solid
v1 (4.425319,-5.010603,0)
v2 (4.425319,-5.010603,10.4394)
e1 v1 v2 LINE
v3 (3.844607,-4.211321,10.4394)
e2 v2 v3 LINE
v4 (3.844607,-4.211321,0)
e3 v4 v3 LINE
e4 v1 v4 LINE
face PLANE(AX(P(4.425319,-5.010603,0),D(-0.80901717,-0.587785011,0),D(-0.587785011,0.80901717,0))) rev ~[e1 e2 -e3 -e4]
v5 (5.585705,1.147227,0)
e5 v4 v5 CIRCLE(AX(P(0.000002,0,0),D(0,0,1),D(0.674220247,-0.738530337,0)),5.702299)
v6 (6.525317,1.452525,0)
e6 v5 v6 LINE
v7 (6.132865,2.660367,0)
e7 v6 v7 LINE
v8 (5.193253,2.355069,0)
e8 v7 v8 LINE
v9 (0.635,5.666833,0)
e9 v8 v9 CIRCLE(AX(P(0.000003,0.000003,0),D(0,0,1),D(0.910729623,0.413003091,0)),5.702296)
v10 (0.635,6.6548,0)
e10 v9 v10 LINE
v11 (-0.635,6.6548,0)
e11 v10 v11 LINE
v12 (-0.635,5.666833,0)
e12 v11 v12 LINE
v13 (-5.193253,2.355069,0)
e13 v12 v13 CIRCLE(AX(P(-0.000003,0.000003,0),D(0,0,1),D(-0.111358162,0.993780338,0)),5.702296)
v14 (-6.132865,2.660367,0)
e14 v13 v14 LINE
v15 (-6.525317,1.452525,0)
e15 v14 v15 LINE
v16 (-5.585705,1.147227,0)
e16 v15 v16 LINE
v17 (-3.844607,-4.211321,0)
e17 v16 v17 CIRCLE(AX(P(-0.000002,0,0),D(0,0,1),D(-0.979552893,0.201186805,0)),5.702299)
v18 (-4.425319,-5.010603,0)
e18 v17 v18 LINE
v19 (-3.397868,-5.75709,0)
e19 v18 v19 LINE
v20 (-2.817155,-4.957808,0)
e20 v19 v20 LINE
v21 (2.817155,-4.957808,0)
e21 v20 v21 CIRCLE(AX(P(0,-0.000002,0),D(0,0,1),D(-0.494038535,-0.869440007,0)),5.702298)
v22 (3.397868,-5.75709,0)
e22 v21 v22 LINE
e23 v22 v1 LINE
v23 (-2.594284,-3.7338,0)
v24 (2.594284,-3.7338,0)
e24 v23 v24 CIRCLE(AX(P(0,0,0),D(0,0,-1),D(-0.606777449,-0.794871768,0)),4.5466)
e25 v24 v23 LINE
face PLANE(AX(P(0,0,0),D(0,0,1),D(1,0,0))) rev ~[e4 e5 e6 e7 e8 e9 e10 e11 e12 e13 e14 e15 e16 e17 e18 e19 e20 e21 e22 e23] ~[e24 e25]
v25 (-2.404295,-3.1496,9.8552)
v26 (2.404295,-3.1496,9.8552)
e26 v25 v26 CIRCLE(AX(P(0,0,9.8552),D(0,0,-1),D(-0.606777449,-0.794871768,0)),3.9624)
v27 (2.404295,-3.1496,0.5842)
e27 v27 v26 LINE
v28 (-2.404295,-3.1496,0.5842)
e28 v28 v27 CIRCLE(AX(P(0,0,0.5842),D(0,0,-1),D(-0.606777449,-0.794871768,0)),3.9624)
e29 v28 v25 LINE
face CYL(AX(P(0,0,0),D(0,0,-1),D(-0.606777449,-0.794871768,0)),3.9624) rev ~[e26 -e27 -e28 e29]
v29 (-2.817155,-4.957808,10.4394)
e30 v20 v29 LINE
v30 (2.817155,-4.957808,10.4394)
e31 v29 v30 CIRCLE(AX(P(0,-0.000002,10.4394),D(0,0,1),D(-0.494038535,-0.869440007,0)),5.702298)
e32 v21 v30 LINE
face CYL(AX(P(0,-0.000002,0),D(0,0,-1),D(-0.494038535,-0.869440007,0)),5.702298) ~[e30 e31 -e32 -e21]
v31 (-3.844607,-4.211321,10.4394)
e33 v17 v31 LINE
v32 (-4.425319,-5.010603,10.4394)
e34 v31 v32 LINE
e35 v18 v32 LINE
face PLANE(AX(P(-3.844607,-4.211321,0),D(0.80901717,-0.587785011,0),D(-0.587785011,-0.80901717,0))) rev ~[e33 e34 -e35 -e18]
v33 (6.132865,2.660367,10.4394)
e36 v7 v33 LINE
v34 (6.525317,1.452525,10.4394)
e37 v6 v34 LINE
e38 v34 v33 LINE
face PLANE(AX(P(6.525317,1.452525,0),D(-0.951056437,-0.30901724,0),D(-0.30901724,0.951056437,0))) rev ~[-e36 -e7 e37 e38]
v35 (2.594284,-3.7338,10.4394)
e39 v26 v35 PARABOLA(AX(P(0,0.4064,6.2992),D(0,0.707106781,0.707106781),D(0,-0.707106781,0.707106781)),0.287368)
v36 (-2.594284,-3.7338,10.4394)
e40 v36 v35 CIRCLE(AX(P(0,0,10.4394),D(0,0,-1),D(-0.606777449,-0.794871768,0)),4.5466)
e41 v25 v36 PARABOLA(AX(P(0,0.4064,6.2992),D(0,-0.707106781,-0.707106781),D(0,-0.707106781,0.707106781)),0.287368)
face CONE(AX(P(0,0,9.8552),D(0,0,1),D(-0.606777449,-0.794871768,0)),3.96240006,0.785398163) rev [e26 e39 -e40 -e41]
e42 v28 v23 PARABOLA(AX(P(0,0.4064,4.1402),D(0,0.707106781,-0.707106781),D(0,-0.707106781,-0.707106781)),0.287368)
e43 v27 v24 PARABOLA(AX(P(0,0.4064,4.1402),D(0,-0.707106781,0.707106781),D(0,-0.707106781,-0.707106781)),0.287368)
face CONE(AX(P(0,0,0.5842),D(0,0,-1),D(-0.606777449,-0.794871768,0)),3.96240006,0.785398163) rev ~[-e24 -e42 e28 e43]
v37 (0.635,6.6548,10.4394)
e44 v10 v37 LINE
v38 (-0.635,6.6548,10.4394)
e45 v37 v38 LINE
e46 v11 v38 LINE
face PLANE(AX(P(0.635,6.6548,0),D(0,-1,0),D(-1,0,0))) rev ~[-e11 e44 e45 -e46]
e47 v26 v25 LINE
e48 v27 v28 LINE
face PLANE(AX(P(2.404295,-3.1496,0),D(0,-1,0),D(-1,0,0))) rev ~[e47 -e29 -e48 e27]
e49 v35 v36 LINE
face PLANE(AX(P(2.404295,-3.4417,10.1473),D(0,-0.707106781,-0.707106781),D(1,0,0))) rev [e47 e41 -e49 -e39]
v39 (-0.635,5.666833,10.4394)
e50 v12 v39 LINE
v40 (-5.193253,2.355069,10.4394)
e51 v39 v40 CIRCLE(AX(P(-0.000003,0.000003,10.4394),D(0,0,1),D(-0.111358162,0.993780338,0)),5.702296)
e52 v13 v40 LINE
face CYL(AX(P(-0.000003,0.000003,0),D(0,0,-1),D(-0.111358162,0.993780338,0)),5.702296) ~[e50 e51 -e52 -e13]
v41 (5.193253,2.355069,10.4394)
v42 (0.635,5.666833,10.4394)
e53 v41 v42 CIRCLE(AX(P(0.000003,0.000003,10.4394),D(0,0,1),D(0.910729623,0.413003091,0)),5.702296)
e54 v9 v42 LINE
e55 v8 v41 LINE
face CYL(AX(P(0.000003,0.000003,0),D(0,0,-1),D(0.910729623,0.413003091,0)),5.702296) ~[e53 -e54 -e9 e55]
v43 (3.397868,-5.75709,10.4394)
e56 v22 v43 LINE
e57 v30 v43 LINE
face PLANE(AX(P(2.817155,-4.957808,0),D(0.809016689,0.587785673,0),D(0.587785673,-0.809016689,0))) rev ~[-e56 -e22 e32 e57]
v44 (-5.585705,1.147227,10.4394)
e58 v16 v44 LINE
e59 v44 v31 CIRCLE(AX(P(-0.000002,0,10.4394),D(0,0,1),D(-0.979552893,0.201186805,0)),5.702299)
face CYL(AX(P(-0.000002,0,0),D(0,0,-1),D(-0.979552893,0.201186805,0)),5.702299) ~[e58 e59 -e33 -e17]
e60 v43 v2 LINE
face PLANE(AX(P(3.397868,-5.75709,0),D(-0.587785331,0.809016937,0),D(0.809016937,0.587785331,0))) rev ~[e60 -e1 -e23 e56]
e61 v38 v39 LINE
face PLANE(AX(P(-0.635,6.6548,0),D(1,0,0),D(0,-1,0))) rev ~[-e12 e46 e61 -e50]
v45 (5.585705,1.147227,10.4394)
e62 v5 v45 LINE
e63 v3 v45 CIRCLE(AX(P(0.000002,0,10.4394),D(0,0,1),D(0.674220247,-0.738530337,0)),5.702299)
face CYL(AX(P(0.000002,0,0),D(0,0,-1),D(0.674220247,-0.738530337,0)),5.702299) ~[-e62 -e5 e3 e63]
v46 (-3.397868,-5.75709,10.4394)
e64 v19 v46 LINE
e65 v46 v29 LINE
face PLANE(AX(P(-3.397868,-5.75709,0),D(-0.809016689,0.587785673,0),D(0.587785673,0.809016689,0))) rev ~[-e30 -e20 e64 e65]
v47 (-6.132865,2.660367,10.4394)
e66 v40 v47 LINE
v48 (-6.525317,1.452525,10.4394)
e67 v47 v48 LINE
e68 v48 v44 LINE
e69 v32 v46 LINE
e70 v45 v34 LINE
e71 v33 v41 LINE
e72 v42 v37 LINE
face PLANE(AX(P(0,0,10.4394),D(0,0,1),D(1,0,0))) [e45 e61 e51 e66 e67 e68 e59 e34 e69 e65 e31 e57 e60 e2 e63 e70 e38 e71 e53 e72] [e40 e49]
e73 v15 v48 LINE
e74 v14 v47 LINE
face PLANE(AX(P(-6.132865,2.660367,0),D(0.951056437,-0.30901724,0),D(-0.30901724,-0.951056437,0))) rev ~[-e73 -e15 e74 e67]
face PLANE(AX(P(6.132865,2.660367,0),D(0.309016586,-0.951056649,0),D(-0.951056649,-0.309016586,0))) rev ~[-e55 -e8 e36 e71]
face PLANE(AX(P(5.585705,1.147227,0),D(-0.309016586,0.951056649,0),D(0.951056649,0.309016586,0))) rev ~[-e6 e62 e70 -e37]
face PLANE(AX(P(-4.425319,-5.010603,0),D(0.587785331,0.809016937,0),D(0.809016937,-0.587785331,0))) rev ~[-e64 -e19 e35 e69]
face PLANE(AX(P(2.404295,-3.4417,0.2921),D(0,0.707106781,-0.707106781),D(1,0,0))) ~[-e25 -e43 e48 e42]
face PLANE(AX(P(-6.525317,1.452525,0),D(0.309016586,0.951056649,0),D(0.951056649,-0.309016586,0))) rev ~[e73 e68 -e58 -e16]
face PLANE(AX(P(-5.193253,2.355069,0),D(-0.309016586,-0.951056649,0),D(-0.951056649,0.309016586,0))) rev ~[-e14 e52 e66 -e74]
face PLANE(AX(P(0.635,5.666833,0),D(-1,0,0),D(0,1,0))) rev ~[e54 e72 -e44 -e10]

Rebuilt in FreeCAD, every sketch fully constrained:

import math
import FreeCAD as App
import Part
import Sketcher
from FreeCAD import Vector
Q = App.Units.Quantity


def edges_at(feature, points):
    """Names of the edges that pass closest to the given points."""
    edges = feature.Shape.Edges
    near = lambda p: min(range(len(edges)), key=lambda i: edges[i].distToShape(Part.Vertex(*p))[0])
    return sorted({f"Edge{near(p) + 1}" for p in points})

doc = App.newDocument("Part")
body = doc.addObject("PartDesign::Body", "Body")

sketch1 = doc.addObject("Sketcher::SketchObject", "Sketch")
body.addObject(sketch1)
sketch1.AttachmentSupport = (doc.XY_Plane, [""])
sketch1.MapMode = "FlatFace"
sketch1.addGeometry(Part.LineSegment(Vector(-6.5, 1.5, 0), Vector(-5.6, 1.1, 0)), False)
sketch1.addGeometry(Part.ArcOfCircle(Part.Circle(Vector(0, 0, 0), Vector(0, 0, 1), 5.7), math.radians(168), math.radians(228)), False)
sketch1.addGeometry(Part.LineSegment(Vector(-3.8, -4.2, 0), Vector(-4.4, -5, 0)), False)
sketch1.addGeometry(Part.LineSegment(Vector(-4.4, -5, 0), Vector(-3.4, -5.8, 0)), False)
sketch1.addGeometry(Part.LineSegment(Vector(-3.4, -5.8, 0), Vector(-2.8, -5, 0)), False)
sketch1.addGeometry(Part.ArcOfCircle(Part.Circle(Vector(0, 0, 0), Vector(0, 0, 1), 5.7), math.radians(-120), math.radians(-60)), False)
sketch1.addGeometry(Part.LineSegment(Vector(2.8, -5, 0), Vector(3.4, -5.8, 0)), False)
sketch1.addGeometry(Part.LineSegment(Vector(3.4, -5.8, 0), Vector(4.4, -5, 0)), False)
sketch1.addGeometry(Part.LineSegment(Vector(4.4, -5, 0), Vector(3.8, -4.2, 0)), False)
sketch1.addGeometry(Part.ArcOfCircle(Part.Circle(Vector(0, 0, 0), Vector(0, 0, 1), 5.7), math.radians(-48), math.radians(12)), False)
sketch1.addGeometry(Part.LineSegment(Vector(5.6, 1.1, 0), Vector(6.5, 1.5, 0)), False)
sketch1.addGeometry(Part.LineSegment(Vector(6.5, 1.5, 0), Vector(6.1, 2.7, 0)), False)
sketch1.addGeometry(Part.LineSegment(Vector(6.1, 2.7, 0), Vector(5.2, 2.4, 0)), False)
sketch1.addGeometry(Part.ArcOfCircle(Part.Circle(Vector(0, 0, 0), Vector(0, 0, 1), 5.7), math.radians(24), math.radians(84)), False)
sketch1.addGeometry(Part.LineSegment(Vector(0.6, 5.7, 0), Vector(0.6, 6.7, 0)), False)
sketch1.addGeometry(Part.LineSegment(Vector(0.6, 6.7, 0), Vector(-0.6, 6.7, 0)), False)
sketch1.addGeometry(Part.LineSegment(Vector(-0.6, 6.7, 0), Vector(-0.6, 5.7, 0)), False)
sketch1.addGeometry(Part.ArcOfCircle(Part.Circle(Vector(0, 0, 0), Vector(0, 0, 1), 5.7), math.radians(96), math.radians(156)), False)
sketch1.addGeometry(Part.LineSegment(Vector(-5.2, 2.4, 0), Vector(-6.1, 2.7, 0)), False)
sketch1.addGeometry(Part.LineSegment(Vector(-6.1, 2.7, 0), Vector(-6.5, 1.5, 0)), False)
sketch1.addGeometry(Part.LineSegment(Vector(2.4, -3.1, 0), Vector(-2.4, -3.1, 0)), False)
sketch1.addGeometry(Part.ArcOfCircle(Part.Circle(Vector(0, 0, 0), Vector(0, 0, 1), 4), math.radians(-53), math.radians(233)), False)
sketch1.addConstraint(Sketcher.Constraint("Coincident", 0, 2, 1, 1))
sketch1.addConstraint(Sketcher.Constraint("Coincident", 1, 2, 2, 1))
sketch1.addConstraint(Sketcher.Constraint("Coincident", 2, 2, 3, 1))
sketch1.addConstraint(Sketcher.Constraint("Coincident", 3, 2, 4, 1))
sketch1.addConstraint(Sketcher.Constraint("Coincident", 4, 2, 5, 1))
sketch1.addConstraint(Sketcher.Constraint("Coincident", 5, 2, 6, 1))
sketch1.addConstraint(Sketcher.Constraint("Coincident", 6, 2, 7, 1))
sketch1.addConstraint(Sketcher.Constraint("Coincident", 7, 2, 8, 1))
sketch1.addConstraint(Sketcher.Constraint("Coincident", 8, 2, 9, 1))
sketch1.addConstraint(Sketcher.Constraint("Coincident", 9, 2, 10, 1))
sketch1.addConstraint(Sketcher.Constraint("Coincident", 10, 2, 11, 1))
sketch1.addConstraint(Sketcher.Constraint("Coincident", 11, 2, 12, 1))
sketch1.addConstraint(Sketcher.Constraint("Coincident", 12, 2, 13, 1))
sketch1.addConstraint(Sketcher.Constraint("Coincident", 13, 2, 14, 1))
sketch1.addConstraint(Sketcher.Constraint("Coincident", 14, 2, 15, 1))
sketch1.addConstraint(Sketcher.Constraint("Coincident", 15, 2, 16, 1))
sketch1.addConstraint(Sketcher.Constraint("Coincident", 16, 2, 17, 1))
sketch1.addConstraint(Sketcher.Constraint("Coincident", 17, 2, 18, 1))
sketch1.addConstraint(Sketcher.Constraint("Coincident", 18, 2, 19, 1))
sketch1.addConstraint(Sketcher.Constraint("Coincident", 19, 2, 0, 1))
sketch1.addConstraint(Sketcher.Constraint("Coincident", 20, 1, 21, 1))
sketch1.addConstraint(Sketcher.Constraint("Coincident", 21, 2, 20, 2))
sketch1.addConstraint(Sketcher.Constraint("Vertical", 14))
sketch1.addConstraint(Sketcher.Constraint("Horizontal", 15))
sketch1.addConstraint(Sketcher.Constraint("Vertical", 16))
sketch1.addConstraint(Sketcher.Constraint("Horizontal", 20))
sketch1.addConstraint(Sketcher.Constraint("Coincident", 1, 3, -1, 1))
sketch1.addConstraint(Sketcher.Constraint("Coincident", 5, 3, -1, 1))
sketch1.addConstraint(Sketcher.Constraint("Coincident", 9, 3, -1, 1))
sketch1.addConstraint(Sketcher.Constraint("Coincident", 13, 3, -1, 1))
sketch1.addConstraint(Sketcher.Constraint("Coincident", 17, 3, -1, 1))
sketch1.addConstraint(Sketcher.Constraint("Coincident", 21, 3, -1, 1))
sketch1.addConstraint(Sketcher.Constraint("Equal", 1, 5))
sketch1.addConstraint(Sketcher.Constraint("Equal", 5, 9))
sketch1.addConstraint(Sketcher.Constraint("Equal", 5, 13))
sketch1.addConstraint(Sketcher.Constraint("Equal", 13, 17))
sketch1.addConstraint(Sketcher.Constraint("Symmetric", 3, 2, 6, 2, -2))
sketch1.addConstraint(Sketcher.Constraint("Symmetric", 2, 2, 7, 2, -2))
sketch1.addConstraint(Sketcher.Constraint("Symmetric", 11, 2, 18, 2, -2))
sketch1.addConstraint(Sketcher.Constraint("Symmetric", 10, 2, 19, 2, -2))
sketch1.addConstraint(Sketcher.Constraint("Perpendicular", 2, 3))
sketch1.addConstraint(Sketcher.Constraint("Perpendicular", 3, 4))
sketch1.addConstraint(Sketcher.Constraint("Perpendicular", 6, 7))
sketch1.addConstraint(Sketcher.Constraint("Perpendicular", 7, 8))
sketch1.addConstraint(Sketcher.Constraint("Perpendicular", 10, 11))
sketch1.addConstraint(Sketcher.Constraint("Perpendicular", 11, 12))
sketch1.addConstraint(Sketcher.Constraint("Parallel", 0, 18))
sketch1.addConstraint(Sketcher.Constraint("Perpendicular", 18, 19))
sketch1.addConstraint(Sketcher.Constraint("Horizontal", 13, 2, 16, 2))
sketch1.addConstraint(Sketcher.Constraint("Equal", 0, 2))
sketch1.addConstraint(Sketcher.Constraint("Equal", 2, 4))
sketch1.addConstraint(Sketcher.Constraint("Equal", 7, 11))
sketch1.addConstraint(Sketcher.Constraint("Equal", 10, 12))
sketch1.addConstraint(Sketcher.Constraint("Angle", 2, Q("-125.999983 deg")))
sketch1.addConstraint(Sketcher.Constraint("Angle", 11, Q("108.000015 deg")))
sketch1.addConstraint(Sketcher.Constraint("Radius", 21, Q("0.156 in")))
sketch1.addConstraint(Sketcher.Constraint("DistanceX", 15, 2, 15, 1, Q("0.05 in")))
sketch1.addConstraint(Sketcher.Constraint("Radius", 1, Q("0.2245 in")))
sketch1.addConstraint(Sketcher.Constraint("Distance", 3, Q("0.05 in")))
sketch1.addConstraint(Sketcher.Constraint("DistanceY", -1, 1, 14, 2, Q("0.262 in")))
sketch1.addConstraint(Sketcher.Constraint("DistanceY", 20, 1, -1, 1, Q("0.124 in")))
sketch1.addConstraint(Sketcher.Constraint("DistanceY", 2, 2, 5, 3, Q("5.010601 mm")))
pad1 = doc.addObject("PartDesign::Pad", "Pad")
body.addObject(pad1)
pad1.Profile = sketch1
pad1.Length = Q("0.411 in")
doc.recompute()

chamfer = doc.addObject("PartDesign::Chamfer", "Chamfer")
body.addObject(chamfer)
chamfer.Base = (pad1, edges_at(pad1, [
    (0, 3.962, 10.439),
    (0, -3.15, 10.439),
    (0, -3.15, 0),
    (0, 3.962, 0),
]))
chamfer.Size = Q("0.023 in")

doc.recompute()
